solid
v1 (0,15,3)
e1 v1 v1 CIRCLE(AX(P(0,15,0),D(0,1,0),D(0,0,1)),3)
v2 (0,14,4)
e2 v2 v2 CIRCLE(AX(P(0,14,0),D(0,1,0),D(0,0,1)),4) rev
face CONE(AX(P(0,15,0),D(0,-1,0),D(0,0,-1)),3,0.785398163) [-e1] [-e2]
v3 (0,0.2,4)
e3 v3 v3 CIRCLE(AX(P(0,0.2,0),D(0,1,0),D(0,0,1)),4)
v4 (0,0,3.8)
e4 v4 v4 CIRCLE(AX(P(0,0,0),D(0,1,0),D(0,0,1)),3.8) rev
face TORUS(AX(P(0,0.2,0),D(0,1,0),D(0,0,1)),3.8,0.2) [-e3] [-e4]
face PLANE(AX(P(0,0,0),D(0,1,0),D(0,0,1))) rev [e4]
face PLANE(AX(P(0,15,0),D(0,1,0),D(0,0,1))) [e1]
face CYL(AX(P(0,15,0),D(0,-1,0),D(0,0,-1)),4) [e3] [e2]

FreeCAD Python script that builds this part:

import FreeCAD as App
import Part
import Sketcher


def edges_at(feature, points):
    """Names of the edges that pass closest to the given points."""
    edges = feature.Shape.Edges
    near = lambda p: min(range(len(edges)), key=lambda i: edges[i].distToShape(Part.Vertex(*p))[0])
    return sorted({f"Edge{near(p) + 1}" for p in points})

doc = App.newDocument("Part")
params = doc.addObject("Spreadsheet::Sheet", "Params")
for row, (alias, value) in enumerate([
    ("sketch1_diameter", "8 mm"),
    ("pad1_length", "15 mm"),
    ("chamfer_size", "1 mm"),
    ("fillet_radius", "0.2 mm"),
], start=1):
    params.set(f"A{row}", alias)
    params.set(f"B{row}", "=" + value)
    params.setAlias(f"B{row}", alias)

body = doc.addObject("PartDesign::Body", "Body")

# Sketch on XZ plane
sketch1 = body.newObject("Sketcher::SketchObject", "Sketch")
sketch1.AttachmentSupport = (doc.getObject("XZ_Plane"), [""])
sketch1.MapMode = "FlatFace"
sketch1.addGeometry(Part.Circle(App.Vector(0, 0, 0), App.Vector(0, 0, 1), 4), False)
sketch1.addConstraint([
    Sketcher.Constraint("Coincident", 0, 3, -1, 1),
    Sketcher.Constraint("Diameter", 0, 8.0),
])
sketch1.setExpression("Constraints[1]", "Params.sketch1_diameter")
pad1 = body.newObject("PartDesign::Pad", "Pad")
pad1.Profile = sketch1
pad1.setExpression("Length", "Params.pad1_length")
pad1.Reversed = True
doc.recompute()

chamfer = body.newObject("PartDesign::Chamfer", "Chamfer")
chamfer.Base = (pad1, edges_at(pad1, [(0, 15, -4)]))
chamfer.setExpression("Size", "Params.chamfer_size")
doc.recompute()

fillet = body.newObject("PartDesign::Fillet", "Fillet")
fillet.Base = (chamfer, edges_at(chamfer, [(0, 0, -4)]))
fillet.setExpression("Radius", "Params.fillet_radius")

doc.recompute()
